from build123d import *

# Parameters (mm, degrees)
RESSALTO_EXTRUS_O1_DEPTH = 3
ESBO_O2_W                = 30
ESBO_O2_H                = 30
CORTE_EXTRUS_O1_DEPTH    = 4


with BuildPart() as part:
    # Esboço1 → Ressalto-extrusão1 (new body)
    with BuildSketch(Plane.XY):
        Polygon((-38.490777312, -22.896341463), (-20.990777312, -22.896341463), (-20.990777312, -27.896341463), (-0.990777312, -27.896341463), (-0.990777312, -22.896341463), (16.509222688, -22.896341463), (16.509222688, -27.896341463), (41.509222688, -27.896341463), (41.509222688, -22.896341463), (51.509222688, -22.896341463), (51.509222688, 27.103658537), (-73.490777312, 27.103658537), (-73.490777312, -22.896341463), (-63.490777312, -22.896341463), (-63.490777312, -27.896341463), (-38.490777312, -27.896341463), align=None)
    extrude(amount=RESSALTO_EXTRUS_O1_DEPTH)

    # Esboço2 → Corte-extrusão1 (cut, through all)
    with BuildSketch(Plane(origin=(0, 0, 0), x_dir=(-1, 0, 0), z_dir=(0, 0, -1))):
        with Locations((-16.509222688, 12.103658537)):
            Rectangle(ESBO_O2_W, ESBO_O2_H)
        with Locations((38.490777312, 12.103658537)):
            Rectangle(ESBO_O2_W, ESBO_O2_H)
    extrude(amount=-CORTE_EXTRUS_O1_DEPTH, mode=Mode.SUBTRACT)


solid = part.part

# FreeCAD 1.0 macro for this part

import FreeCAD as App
import Part
import Sketcher

V = App.Vector


def add_polygon(sketch, points):
    """Adds a closed chain of lines whose ends are joined by coincident constraints."""
    first, n = sketch.GeometryCount, len(points)
    for a, b in zip(points, points[1:] + points[:1]):
        sketch.addGeometry(Part.LineSegment(App.Vector(*a, 0), App.Vector(*b, 0)), False)
    for i in range(n):
        sketch.addConstraint(Sketcher.Constraint("Coincident", first + i, 2, first + (i + 1) % n, 1))

doc = App.newDocument("Part")
body = doc.addObject("PartDesign::Body", "Body")

sketch1 = body.newObject("Sketcher::SketchObject", "Sketch")
sketch1.AttachmentSupport = (doc.getObject("XY_Plane"), [""])
sketch1.MapMode = "FlatFace"
add_polygon(sketch1, [(-38, -23), (-21, -23), (-21, -28), (-1, -28), (-1, -23), (17, -23), (17, -28), (42, -28), (42, -23), (52, -23), (52, 27), (-73, 27), (-73, -23), (-63, -23), (-63, -28), (-38, -28)])
sketch1.addConstraint(Sketcher.Constraint("Horizontal", 0))
sketch1.addConstraint(Sketcher.Constraint("Vertical", 1))
sketch1.addConstraint(Sketcher.Constraint("Horizontal", 2))
sketch1.addConstraint(Sketcher.Constraint("Vertical", 3))
sketch1.addConstraint(Sketcher.Constraint("Horizontal", 4))
sketch1.addConstraint(Sketcher.Constraint("Vertical", 5))
sketch1.addConstraint(Sketcher.Constraint("Horizontal", 6))
sketch1.addConstraint(Sketcher.Constraint("Vertical", 7))
sketch1.addConstraint(Sketcher.Constraint("Horizontal", 8))
sketch1.addConstraint(Sketcher.Constraint("Vertical", 9))
sketch1.addConstraint(Sketcher.Constraint("Horizontal", 10))
sketch1.addConstraint(Sketcher.Constraint("Vertical", 11))
sketch1.addConstraint(Sketcher.Constraint("Horizontal", 12))
sketch1.addConstraint(Sketcher.Constraint("Vertical", 13))
sketch1.addConstraint(Sketcher.Constraint("Horizontal", 14))
sketch1.addConstraint(Sketcher.Constraint("Vertical", 15))
sketch1.addConstraint(Sketcher.Constraint("Horizontal", 0, 2, 3, 2))
sketch1.addConstraint(Sketcher.Constraint("Horizontal", 2, 2, 5, 2))
sketch1.addConstraint(Sketcher.Constraint("Horizontal", 4, 2, 7, 2))
sketch1.addConstraint(Sketcher.Constraint("Horizontal", 8, 2, 11, 2))
sketch1.addConstraint(Sketcher.Constraint("Horizontal", 6, 2, 13, 2))
sketch1.addConstraint(Sketcher.Constraint("Equal", 0, 4))
sketch1.addConstraint(Sketcher.Constraint("Equal", 8, 12))
sketch1.addConstraint(Sketcher.Constraint("Equal", 6, 14))
sketch1.addConstraint(Sketcher.Constraint("DistanceX", 2, 1, 2, 2, 20.0))
sketch1.addConstraint(Sketcher.Constraint("DistanceX", 6, 1, 6, 2, 25.0))
sketch1.addConstraint(Sketcher.Constraint("DistanceX", 8, 1, 8, 2, 10.0))
sketch1.addConstraint(Sketcher.Constraint("DistanceX", 10, 2, 10, 1, 125.0))
sketch1.addConstraint(Sketcher.Constraint("DistanceY", 1, 2, 1, 1, 5.0))
sketch1.addConstraint(Sketcher.Constraint("DistanceY", 9, 1, 9, 2, 50.0))
sketch1.addConstraint(Sketcher.Constraint("DistanceY", 0, 2, -1, 1, 22.896341))
sketch1.addConstraint(Sketcher.Constraint("DistanceX", 0, 2, -1, 1, 20.990777))
pad1 = body.newObject("PartDesign::Pad", "Pad")
pad1.Profile = sketch1
pad1.Length = 3

sketch2 = body.newObject("Sketcher::SketchObject", "Sketch001")
sketch2.AttachmentSupport = (doc.getObject("XY_Plane"), [""])
sketch2.MapMode = "FlatFace"
add_polygon(sketch2, [(32, 27), (32, -3), (2, -3), (2, 27)])
add_polygon(sketch2, [(-23, 27), (-23, -3), (-53, -3), (-53, 27)])
sketch2.addConstraint(Sketcher.Constraint("Vertical", 0))
sketch2.addConstraint(Sketcher.Constraint("Horizontal", 1))
sketch2.addConstraint(Sketcher.Constraint("Vertical", 2))
sketch2.addConstraint(Sketcher.Constraint("Horizontal", 3))
sketch2.addConstraint(Sketcher.Constraint("Vertical", 4))
sketch2.addConstraint(Sketcher.Constraint("Horizontal", 5))
sketch2.addConstraint(Sketcher.Constraint("Vertical", 6))
sketch2.addConstraint(Sketcher.Constraint("Horizontal", 7))
sketch2.addConstraint(Sketcher.Constraint("Horizontal", 1, 2, 4, 2))
sketch2.addConstraint(Sketcher.Constraint("Horizontal", 3, 2, 6, 2))
sketch2.addConstraint(Sketcher.Constraint("Equal", 3, 5))
sketch2.addConstraint(Sketcher.Constraint("Equal", 7, 0))
sketch2.addConstraint(Sketcher.Constraint("DistanceX", 1, 2, 1, 1, 30.0))
sketch2.addConstraint(Sketcher.Constraint("DistanceX", 4, 2, 1, 2, 25.0))
sketch2.addConstraint(Sketcher.Constraint("DistanceY", 0, 2, -1, 1, 2.896341))
sketch2.addConstraint(Sketcher.Constraint("DistanceX", -1, 1, 0, 2, 31.509223))
pocket1 = body.newObject("PartDesign::Pocket", "Pocket")
pocket1.Profile = sketch2
pocket1.Type = "ThroughAll"
pocket1.Reversed = True

doc.recompute()
